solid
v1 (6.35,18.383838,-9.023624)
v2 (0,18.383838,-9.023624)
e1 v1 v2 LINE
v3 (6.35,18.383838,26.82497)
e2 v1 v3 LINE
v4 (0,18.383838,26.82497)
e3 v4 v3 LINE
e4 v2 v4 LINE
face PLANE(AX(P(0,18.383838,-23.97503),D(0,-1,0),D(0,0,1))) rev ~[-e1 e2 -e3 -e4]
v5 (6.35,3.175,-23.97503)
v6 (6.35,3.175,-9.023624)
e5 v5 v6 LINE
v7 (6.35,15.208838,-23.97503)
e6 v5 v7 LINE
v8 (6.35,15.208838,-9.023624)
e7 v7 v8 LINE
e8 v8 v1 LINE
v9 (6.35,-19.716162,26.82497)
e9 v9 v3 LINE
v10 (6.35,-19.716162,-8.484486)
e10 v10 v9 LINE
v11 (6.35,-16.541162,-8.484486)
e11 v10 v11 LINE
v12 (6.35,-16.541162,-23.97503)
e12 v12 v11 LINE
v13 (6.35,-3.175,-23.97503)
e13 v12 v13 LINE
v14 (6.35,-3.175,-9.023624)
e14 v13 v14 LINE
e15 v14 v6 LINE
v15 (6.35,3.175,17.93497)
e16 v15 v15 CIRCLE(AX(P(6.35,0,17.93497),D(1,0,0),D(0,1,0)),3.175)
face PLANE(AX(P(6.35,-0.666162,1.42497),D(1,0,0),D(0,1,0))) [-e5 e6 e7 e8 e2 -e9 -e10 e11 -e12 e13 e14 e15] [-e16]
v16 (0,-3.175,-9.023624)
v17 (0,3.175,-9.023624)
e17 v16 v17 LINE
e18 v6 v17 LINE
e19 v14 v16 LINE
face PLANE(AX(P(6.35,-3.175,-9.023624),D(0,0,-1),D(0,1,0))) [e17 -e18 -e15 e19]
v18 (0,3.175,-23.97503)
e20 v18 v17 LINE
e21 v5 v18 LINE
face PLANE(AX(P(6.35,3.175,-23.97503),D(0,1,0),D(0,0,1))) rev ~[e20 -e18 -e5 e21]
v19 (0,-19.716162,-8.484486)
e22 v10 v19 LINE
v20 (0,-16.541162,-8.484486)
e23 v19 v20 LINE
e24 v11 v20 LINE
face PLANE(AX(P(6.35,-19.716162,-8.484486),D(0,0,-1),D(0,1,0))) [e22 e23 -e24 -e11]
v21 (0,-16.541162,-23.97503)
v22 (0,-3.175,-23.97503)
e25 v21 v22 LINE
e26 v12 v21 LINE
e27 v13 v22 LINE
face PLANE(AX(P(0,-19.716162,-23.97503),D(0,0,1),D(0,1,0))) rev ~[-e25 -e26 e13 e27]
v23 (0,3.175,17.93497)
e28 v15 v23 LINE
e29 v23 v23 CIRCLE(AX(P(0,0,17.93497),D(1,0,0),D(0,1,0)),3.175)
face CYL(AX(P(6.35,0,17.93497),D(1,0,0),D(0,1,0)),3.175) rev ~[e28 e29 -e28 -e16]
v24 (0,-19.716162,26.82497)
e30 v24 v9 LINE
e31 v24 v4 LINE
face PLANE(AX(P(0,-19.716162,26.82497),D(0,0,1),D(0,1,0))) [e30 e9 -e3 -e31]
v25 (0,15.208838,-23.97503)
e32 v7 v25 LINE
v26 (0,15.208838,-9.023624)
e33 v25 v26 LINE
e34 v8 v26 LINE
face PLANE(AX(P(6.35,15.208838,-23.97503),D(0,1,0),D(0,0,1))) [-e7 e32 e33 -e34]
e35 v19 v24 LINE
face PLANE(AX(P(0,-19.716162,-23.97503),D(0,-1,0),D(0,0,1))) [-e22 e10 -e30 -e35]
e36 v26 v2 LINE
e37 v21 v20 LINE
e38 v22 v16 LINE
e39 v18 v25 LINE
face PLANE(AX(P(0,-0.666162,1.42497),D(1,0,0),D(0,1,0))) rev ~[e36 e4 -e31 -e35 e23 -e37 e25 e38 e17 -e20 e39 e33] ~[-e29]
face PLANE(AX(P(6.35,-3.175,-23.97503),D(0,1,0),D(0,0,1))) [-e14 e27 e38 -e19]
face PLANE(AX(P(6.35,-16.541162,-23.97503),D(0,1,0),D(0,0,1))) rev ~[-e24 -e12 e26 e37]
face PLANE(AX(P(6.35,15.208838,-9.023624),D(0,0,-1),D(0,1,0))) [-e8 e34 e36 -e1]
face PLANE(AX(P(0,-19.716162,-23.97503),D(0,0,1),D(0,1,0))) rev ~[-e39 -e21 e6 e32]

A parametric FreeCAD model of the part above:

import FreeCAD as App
import Part
import Sketcher

V = App.Vector
Q = App.Units.Quantity

doc = App.newDocument("Part")
body = doc.addObject("PartDesign::Body", "Body")

# Sketch on YZ plane
sketch1 = doc.addObject("Sketcher::SketchObject", "Sketch")
body.addObject(sketch1)
sketch1.AttachmentSupport = (doc.YZ_Plane, [""])
sketch1.MapMode = "FlatFace"
sketch1.addGeometry(Part.LineSegment(V(-20, 27, 0), V(-20, -24, 0)), False)
sketch1.addGeometry(Part.LineSegment(V(-20, -24, 0), V(18, -24, 0)), False)
sketch1.addGeometry(Part.LineSegment(V(18, -24, 0), V(18, 27, 0)), False)
sketch1.addGeometry(Part.LineSegment(V(18, 27, 0), V(-20, 27, 0)), False)
sketch1.addConstraint(Sketcher.Constraint("Coincident", 0, 2, 1, 1))
sketch1.addConstraint(Sketcher.Constraint("Coincident", 1, 2, 2, 1))
sketch1.addConstraint(Sketcher.Constraint("Coincident", 2, 2, 3, 1))
sketch1.addConstraint(Sketcher.Constraint("Coincident", 3, 2, 0, 1))
sketch1.addConstraint(Sketcher.Constraint("Vertical", 0))
sketch1.addConstraint(Sketcher.Constraint("Horizontal", 1))
sketch1.addConstraint(Sketcher.Constraint("Vertical", 2))
sketch1.addConstraint(Sketcher.Constraint("Horizontal", 3))
sketch1.addConstraint(Sketcher.Constraint("DistanceY", 0, 2, 0, 1, Q("2 in")))
sketch1.addConstraint(Sketcher.Constraint("DistanceX", 1, 1, 1, 2, Q("1.5 in")))
sketch1.addConstraint(Sketcher.Constraint("DistanceY", 0, 2, -1, 1, Q("23.97503 mm")))
sketch1.addConstraint(Sketcher.Constraint("DistanceX", -1, 1, 1, 2, Q("18.383838 mm")))
pad1 = doc.addObject("PartDesign::Pad", "Pad")
body.addObject(pad1)
pad1.Profile = sketch1
pad1.Length = Q("0.25 in")

# Sketch on YZ plane
sketch2 = doc.addObject("Sketcher::SketchObject", "Sketch001")
body.addObject(sketch2)
sketch2.AttachmentSupport = (doc.YZ_Plane, [""])
sketch2.MapMode = "FlatFace"
sketch2.AttachmentOffset = App.Placement(V(0, 0, 0.25 * 25.4), App.Rotation())
sketch2.addGeometry(Part.Circle(V(0, 17.9, 0), V(0, 0, 1), 3.2), False)
sketch2.addConstraint(Sketcher.Constraint("PointOnObject", 0, 3, -2))
sketch2.addConstraint(Sketcher.Constraint("Diameter", 0, Q("0.25 in")))
sketch2.addConstraint(Sketcher.Constraint("DistanceY", -1, 1, 0, 3, Q("17.93497 mm")))
pocket1 = doc.addObject("PartDesign::Pocket", "Pocket")
body.addObject(pocket1)
pocket1.Profile = sketch2
pocket1.Type = "ThroughAll"

# Sketch on YZ plane
sketch3 = doc.addObject("Sketcher::SketchObject", "Sketch002")
body.addObject(sketch3)
sketch3.AttachmentSupport = (doc.YZ_Plane, [""])
sketch3.MapMode = "FlatFace"
sketch3.AttachmentOffset = App.Placement(V(0, 0, 0.25 * 25.4), App.Rotation())
sketch3.addGeometry(Part.LineSegment(V(-19.7, -8.5, 0), V(-19.7, -24, 0)), False)
sketch3.addGeometry(Part.LineSegment(V(-19.7, -24, 0), V(-16.5, -24, 0)), False)
sketch3.addGeometry(Part.LineSegment(V(-16.5, -24, 0), V(-16.5, -8.5, 0)), False)
sketch3.addGeometry(Part.LineSegment(V(-16.5, -8.5, 0), V(-19.7, -8.5, 0)), False)
sketch3.addGeometry(Part.LineSegment(V(15.2, -9, 0), V(15.2, -24, 0)), False)
sketch3.addGeometry(Part.LineSegment(V(15.2, -24, 0), V(18.4, -24, 0)), False)
sketch3.addGeometry(Part.LineSegment(V(18.4, -24, 0), V(18.4, -9, 0)), False)
sketch3.addGeometry(Part.LineSegment(V(18.4, -9, 0), V(15.2, -9, 0)), False)
sketch3.addConstraint(Sketcher.Constraint("Coincident", 0, 2, 1, 1))
sketch3.addConstraint(Sketcher.Constraint("Coincident", 1, 2, 2, 1))
sketch3.addConstraint(Sketcher.Constraint("Coincident", 2, 2, 3, 1))
sketch3.addConstraint(Sketcher.Constraint("Coincident", 3, 2, 0, 1))
sketch3.addConstraint(Sketcher.Constraint("Coincident", 4, 2, 5, 1))
sketch3.addConstraint(Sketcher.Constraint("Coincident", 5, 2, 6, 1))
sketch3.addConstraint(Sketcher.Constraint("Coincident", 6, 2, 7, 1))
sketch3.addConstraint(Sketcher.Constraint("Coincident", 7, 2, 4, 1))
sketch3.addConstraint(Sketcher.Constraint("Vertical", 0))
sketch3.addConstraint(Sketcher.Constraint("Horizontal", 1))
sketch3.addConstraint(Sketcher.Constraint("Vertical", 2))
sketch3.addConstraint(Sketcher.Constraint("Horizontal", 3))
sketch3.addConstraint(Sketcher.Constraint("Vertical", 4))
sketch3.addConstraint(Sketcher.Constraint("Horizontal", 5))
sketch3.addConstraint(Sketcher.Constraint("Vertical", 6))
sketch3.addConstraint(Sketcher.Constraint("Horizontal", 7))
sketch3.addConstraint(Sketcher.Constraint("Horizontal", 1, 2, 4, 2))
sketch3.addConstraint(Sketcher.Constraint("Equal", 3, 5))
sketch3.addConstraint(Sketcher.Constraint("DistanceX", 0, 2, 5, 2, Q("1.5 in")))
sketch3.addConstraint(Sketcher.Constraint("DistanceX", 1, 1, 1, 2, Q("0.125 in")))
sketch3.addConstraint(Sketcher.Constraint("DistanceY", 0, 2, 0, 1, Q("15.490544 mm")))
sketch3.addConstraint(Sketcher.Constraint("DistanceY", 4, 2, 4, 1, Q("14.951406 mm")))
sketch3.addConstraint(Sketcher.Constraint("DistanceY", 0, 2, -1, 1, Q("23.97503 mm")))
sketch3.addConstraint(Sketcher.Constraint("DistanceX", 1, 2, -1, 1, Q("16.541162 mm")))
pocket2 = doc.addObject("PartDesign::Pocket", "Pocket001")
body.addObject(pocket2)
pocket2.Profile = sketch3
pocket2.Type = "ThroughAll"

# Sketch on YZ plane
sketch4 = doc.addObject("Sketcher::SketchObject", "Sketch003")
body.addObject(sketch4)
sketch4.AttachmentSupport = (doc.YZ_Plane, [""])
sketch4.MapMode = "FlatFace"
sketch4.AttachmentOffset = App.Placement(V(0, 0, 0.25 * 25.4), App.Rotation())
sketch4.addGeometry(Part.LineSegment(V(-3, -9, 0), V(-3, -24, 0)), False)
sketch4.addGeometry(Part.LineSegment(V(-3, -24, 0), V(3, -24, 0)), False)
sketch4.addGeometry(Part.LineSegment(V(3, -24, 0), V(3, -9, 0)), False)
sketch4.addGeometry(Part.LineSegment(V(3, -9, 0), V(-3, -9, 0)), False)
sketch4.addConstraint(Sketcher.Constraint("Coincident", 0, 2, 1, 1))
sketch4.addConstraint(Sketcher.Constraint("Coincident", 1, 2, 2, 1))
sketch4.addConstraint(Sketcher.Constraint("Coincident", 2, 2, 3, 1))
sketch4.addConstraint(Sketcher.Constraint("Coincident", 3, 2, 0, 1))
sketch4.addConstraint(Sketcher.Constraint("Vertical", 0))
sketch4.addConstraint(Sketcher.Constraint("Horizontal", 1))
sketch4.addConstraint(Sketcher.Constraint("Vertical", 2))
sketch4.addConstraint(Sketcher.Constraint("Horizontal", 3))
sketch4.addConstraint(Sketcher.Constraint("DistanceX", 1, 1, 1, 2, Q("0.25 in")))
sketch4.addConstraint(Sketcher.Constraint("DistanceX", 0, 2, -1, 1, Q("0.125 in")))
sketch4.addConstraint(Sketcher.Constraint("DistanceY", 0, 2, 0, 1, Q("14.951406 mm")))
sketch4.addConstraint(Sketcher.Constraint("DistanceY", 0, 2, -1, 1, Q("23.97503 mm")))
pocket3 = doc.addObject("PartDesign::Pocket", "Pocket002")
body.addObject(pocket3)
pocket3.Profile = sketch4
pocket3.Type = "ThroughAll"

doc.recompute()
